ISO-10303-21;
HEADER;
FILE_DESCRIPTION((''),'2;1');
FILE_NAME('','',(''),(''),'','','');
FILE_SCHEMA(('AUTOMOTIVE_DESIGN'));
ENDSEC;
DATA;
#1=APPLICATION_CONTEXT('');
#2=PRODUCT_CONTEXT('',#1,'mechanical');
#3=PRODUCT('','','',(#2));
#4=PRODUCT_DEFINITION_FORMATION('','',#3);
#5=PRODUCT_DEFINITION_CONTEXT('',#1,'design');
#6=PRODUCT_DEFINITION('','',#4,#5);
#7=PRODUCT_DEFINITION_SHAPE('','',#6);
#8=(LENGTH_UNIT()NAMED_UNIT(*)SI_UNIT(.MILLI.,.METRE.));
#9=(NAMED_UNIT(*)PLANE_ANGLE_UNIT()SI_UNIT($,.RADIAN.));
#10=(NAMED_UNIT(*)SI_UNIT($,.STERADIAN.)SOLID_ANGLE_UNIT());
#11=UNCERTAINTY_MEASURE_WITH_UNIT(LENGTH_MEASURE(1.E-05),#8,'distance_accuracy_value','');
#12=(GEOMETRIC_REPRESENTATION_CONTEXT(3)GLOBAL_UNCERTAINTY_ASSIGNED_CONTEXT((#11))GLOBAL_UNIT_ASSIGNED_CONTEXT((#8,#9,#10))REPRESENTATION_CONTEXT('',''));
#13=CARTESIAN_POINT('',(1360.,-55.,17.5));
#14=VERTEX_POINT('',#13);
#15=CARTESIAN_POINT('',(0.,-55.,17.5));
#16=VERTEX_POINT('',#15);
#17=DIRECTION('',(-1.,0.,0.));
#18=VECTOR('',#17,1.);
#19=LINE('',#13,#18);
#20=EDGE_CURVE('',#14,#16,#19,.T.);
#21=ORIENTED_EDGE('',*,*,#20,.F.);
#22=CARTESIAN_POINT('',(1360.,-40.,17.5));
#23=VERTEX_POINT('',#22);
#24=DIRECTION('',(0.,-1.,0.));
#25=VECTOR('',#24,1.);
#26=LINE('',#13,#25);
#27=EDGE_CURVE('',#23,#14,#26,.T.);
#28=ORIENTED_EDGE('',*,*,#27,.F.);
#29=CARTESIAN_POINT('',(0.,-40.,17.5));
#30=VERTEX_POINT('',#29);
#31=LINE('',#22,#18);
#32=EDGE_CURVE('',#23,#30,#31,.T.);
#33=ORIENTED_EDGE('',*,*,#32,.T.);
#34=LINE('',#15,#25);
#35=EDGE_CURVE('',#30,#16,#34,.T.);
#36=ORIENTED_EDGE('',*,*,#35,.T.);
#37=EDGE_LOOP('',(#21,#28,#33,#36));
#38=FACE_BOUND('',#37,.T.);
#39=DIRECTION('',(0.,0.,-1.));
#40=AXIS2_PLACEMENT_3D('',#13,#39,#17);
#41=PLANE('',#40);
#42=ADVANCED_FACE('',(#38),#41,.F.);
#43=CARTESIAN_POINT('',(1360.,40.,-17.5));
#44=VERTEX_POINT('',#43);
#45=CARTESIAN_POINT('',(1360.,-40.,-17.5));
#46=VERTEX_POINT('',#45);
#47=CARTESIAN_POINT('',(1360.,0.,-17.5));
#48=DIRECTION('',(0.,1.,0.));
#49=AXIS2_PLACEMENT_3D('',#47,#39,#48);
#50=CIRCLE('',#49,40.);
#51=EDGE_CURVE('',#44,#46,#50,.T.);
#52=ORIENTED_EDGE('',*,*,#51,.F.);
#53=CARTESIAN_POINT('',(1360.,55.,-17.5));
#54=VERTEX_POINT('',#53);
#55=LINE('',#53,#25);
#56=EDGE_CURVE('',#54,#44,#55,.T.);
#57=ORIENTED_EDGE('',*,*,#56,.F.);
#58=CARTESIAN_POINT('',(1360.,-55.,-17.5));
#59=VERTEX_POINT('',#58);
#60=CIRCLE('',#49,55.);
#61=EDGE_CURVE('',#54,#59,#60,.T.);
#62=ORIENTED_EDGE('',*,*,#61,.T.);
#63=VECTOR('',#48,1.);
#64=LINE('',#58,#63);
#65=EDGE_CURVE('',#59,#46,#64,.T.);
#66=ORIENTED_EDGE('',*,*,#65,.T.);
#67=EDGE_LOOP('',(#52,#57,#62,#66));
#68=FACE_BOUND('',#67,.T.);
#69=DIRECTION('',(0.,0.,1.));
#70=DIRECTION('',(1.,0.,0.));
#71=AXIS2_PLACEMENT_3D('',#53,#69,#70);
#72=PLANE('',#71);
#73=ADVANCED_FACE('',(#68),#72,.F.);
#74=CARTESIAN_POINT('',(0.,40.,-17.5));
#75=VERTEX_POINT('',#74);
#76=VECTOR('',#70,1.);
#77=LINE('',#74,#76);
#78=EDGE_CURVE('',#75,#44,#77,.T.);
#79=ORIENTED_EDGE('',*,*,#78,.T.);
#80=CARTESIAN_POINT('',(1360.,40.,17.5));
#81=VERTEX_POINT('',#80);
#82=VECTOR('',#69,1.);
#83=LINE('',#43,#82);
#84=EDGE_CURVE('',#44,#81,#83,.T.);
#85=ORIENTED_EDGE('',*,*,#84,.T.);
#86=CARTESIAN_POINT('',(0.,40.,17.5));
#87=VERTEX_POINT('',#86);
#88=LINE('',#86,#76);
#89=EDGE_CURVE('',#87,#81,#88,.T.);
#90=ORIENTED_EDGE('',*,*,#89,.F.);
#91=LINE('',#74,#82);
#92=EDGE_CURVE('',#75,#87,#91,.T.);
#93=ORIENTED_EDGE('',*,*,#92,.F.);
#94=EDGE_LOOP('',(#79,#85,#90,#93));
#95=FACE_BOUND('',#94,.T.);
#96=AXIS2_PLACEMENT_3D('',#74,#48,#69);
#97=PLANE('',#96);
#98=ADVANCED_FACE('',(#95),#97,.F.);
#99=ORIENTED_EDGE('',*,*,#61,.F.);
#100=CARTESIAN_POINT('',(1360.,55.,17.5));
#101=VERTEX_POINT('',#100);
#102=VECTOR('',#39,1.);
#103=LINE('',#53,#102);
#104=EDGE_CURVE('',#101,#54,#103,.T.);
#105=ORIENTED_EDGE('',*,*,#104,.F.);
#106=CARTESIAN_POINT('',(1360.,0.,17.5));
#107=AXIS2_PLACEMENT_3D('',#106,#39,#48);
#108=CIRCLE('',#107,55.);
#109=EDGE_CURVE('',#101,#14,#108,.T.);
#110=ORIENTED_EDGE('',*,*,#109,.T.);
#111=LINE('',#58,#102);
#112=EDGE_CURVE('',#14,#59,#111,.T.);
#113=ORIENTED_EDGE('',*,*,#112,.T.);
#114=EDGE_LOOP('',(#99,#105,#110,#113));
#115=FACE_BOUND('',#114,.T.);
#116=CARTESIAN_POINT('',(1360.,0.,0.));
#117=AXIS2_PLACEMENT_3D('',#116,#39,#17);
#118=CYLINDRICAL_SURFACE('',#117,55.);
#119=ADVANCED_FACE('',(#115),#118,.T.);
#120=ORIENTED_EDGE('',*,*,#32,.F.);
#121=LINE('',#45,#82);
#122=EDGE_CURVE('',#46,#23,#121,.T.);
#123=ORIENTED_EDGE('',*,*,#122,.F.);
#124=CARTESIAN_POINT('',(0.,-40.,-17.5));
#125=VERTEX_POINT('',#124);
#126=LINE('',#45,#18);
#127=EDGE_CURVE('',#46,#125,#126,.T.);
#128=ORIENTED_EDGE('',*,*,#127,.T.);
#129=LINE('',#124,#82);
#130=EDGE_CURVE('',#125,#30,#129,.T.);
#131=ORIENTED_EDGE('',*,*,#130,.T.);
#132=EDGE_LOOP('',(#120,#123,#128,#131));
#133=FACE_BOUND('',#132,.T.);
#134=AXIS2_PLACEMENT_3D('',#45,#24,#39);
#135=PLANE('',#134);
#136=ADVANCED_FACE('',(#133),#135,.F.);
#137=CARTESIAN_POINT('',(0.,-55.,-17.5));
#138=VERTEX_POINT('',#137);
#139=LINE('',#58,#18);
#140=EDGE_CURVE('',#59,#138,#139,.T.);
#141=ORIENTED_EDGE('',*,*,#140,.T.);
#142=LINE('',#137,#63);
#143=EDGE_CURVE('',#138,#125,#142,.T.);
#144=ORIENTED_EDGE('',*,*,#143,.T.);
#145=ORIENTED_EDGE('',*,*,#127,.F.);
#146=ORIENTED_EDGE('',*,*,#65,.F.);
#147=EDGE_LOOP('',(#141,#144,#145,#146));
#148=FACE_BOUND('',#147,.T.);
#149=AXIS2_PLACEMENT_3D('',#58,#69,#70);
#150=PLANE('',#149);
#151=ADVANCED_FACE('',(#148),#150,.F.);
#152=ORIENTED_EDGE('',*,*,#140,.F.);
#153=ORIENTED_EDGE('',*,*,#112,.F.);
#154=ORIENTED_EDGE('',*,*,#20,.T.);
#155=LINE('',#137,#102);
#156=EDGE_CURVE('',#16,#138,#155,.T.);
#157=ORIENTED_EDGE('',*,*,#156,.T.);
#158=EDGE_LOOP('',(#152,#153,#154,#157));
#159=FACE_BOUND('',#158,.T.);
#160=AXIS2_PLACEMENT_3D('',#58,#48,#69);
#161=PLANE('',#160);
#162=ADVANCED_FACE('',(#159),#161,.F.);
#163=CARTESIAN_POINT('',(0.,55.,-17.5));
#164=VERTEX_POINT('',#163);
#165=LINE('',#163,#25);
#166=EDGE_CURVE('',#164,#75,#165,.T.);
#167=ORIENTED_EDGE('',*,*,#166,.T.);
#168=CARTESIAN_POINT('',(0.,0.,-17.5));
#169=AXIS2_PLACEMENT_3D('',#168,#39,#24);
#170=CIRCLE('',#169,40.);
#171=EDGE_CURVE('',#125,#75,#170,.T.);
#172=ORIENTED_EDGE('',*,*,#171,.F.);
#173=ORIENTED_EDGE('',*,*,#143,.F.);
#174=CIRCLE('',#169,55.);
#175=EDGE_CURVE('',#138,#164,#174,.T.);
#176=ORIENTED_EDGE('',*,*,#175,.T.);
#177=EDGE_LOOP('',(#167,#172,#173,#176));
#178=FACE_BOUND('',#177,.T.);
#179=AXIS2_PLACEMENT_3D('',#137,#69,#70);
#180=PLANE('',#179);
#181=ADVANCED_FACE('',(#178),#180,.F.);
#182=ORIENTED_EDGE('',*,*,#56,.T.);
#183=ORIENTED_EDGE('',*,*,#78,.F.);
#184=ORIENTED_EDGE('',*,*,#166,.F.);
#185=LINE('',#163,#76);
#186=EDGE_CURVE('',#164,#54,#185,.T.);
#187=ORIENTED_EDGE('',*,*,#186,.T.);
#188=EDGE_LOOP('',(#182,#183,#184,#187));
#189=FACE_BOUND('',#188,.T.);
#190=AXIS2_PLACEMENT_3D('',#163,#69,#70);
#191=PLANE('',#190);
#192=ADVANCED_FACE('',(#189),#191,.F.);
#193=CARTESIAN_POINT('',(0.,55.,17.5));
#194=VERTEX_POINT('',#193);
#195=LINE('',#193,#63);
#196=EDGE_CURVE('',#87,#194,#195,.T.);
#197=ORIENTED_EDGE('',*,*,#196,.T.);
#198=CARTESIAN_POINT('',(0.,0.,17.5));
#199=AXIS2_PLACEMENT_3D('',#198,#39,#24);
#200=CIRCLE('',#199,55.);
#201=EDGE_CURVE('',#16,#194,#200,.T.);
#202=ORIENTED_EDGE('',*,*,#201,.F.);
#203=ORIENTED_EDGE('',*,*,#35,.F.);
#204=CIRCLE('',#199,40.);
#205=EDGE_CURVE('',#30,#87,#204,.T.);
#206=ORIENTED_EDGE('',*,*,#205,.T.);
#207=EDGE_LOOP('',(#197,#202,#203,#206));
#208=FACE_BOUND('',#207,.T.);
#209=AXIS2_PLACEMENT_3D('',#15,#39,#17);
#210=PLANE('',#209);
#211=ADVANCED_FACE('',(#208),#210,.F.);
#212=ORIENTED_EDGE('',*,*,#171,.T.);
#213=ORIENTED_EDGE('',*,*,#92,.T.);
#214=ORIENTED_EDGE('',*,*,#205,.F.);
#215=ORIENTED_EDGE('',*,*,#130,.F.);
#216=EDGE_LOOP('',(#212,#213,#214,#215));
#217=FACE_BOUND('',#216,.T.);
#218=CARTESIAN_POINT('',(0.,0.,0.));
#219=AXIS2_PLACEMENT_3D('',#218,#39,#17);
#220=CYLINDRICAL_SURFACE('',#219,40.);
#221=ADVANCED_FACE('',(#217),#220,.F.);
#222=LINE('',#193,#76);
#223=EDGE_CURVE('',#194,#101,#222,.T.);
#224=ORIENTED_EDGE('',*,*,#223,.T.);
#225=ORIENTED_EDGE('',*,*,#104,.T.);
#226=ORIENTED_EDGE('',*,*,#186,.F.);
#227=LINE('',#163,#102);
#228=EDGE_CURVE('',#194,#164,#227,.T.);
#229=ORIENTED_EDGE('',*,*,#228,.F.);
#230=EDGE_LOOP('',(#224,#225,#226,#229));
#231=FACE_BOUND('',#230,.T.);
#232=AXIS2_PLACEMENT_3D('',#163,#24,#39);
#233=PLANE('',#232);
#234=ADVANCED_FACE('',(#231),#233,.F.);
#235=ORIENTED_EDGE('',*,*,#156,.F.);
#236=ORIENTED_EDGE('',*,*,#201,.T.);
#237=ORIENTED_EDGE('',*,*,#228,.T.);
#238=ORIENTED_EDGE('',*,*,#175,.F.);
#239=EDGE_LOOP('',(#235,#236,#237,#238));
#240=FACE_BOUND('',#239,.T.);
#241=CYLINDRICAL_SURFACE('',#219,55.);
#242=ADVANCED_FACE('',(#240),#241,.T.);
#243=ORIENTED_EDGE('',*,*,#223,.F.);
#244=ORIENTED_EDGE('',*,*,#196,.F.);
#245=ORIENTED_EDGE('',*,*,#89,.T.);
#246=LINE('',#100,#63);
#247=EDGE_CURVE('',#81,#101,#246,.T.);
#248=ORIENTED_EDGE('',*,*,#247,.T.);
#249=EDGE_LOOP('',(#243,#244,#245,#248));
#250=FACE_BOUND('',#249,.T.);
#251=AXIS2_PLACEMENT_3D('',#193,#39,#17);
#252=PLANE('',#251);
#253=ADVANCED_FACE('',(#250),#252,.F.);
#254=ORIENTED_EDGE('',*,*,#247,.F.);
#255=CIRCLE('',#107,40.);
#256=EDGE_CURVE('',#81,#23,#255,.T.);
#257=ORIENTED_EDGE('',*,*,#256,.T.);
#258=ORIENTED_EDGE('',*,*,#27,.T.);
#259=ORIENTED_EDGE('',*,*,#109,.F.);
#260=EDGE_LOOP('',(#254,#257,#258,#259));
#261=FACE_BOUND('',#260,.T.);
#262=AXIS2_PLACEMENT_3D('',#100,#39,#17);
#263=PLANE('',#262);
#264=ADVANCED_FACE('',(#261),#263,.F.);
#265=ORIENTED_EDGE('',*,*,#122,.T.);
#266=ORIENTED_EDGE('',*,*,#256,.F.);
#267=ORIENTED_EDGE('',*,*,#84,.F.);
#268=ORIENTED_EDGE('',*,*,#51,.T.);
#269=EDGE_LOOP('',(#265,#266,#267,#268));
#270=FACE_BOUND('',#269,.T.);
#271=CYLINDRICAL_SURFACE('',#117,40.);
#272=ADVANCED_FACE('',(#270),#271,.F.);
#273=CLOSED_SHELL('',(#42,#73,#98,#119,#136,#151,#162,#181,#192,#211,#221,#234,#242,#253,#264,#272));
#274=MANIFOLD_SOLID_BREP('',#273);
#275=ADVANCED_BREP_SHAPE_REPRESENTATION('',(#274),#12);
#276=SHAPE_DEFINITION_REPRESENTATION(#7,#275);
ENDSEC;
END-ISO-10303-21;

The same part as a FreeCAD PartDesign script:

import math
import FreeCAD as App
import Part
import Sketcher

V = App.Vector


def add_polygon(sketch, points):
    """Adds a closed chain of lines whose ends are joined by coincident constraints."""
    first, n = sketch.GeometryCount, len(points)
    for a, b in zip(points, points[1:] + points[:1]):
        sketch.addGeometry(Part.LineSegment(App.Vector(*a, 0), App.Vector(*b, 0)), False)
    for i in range(n):
        sketch.addConstraint(Sketcher.Constraint("Coincident", first + i, 2, first + (i + 1) % n, 1))

doc = App.newDocument("Part")
params = doc.addObject("Spreadsheet::Sheet", "Params")
for row, (alias, value) in enumerate([
    ("sketch1_width", "15 mm"),
    ("sketch1_height", "35 mm"),
    ("sketch2_radius", "40 mm"),
    ("sketch2_width", "1360 mm"),
], start=1):
    params.set(f"A{row}", alias)
    params.set(f"B{row}", "=" + value)
    params.setAlias(f"B{row}", alias)

body = doc.addObject("PartDesign::Body", "Body")

# Sketch on YZ plane
sketch1 = body.newObject("Sketcher::SketchObject", "Sketch")
sketch1.AttachmentSupport = (doc.getObject("YZ_Plane"), [""])
sketch1.MapMode = "FlatFace"
sketch1.AttachmentOffset = App.Placement(V(0, 0, 1360), App.Rotation())
add_polygon(sketch1, [(55, 18), (55, -18), (40, -18), (40, 17)])  # lines 0-3
sketch1.addConstraint(Sketcher.Constraint("Vertical", 0))
sketch1.addConstraint(Sketcher.Constraint("Horizontal", 1))
sketch1.addConstraint(Sketcher.Constraint("Vertical", 2))
sketch1.addConstraint(Sketcher.Constraint("Horizontal", 3))
sketch1.addConstraint(Sketcher.Constraint("DistanceX", 1, 2, 1, 1, 15.0))
sketch1.addConstraint(Sketcher.Constraint("DistanceY", 0, 2, 0, 1, 35.0))
sketch1.addConstraint(Sketcher.Constraint("DistanceX", -1, 1, 0, 2, 55.0))
sketch1.addConstraint(Sketcher.Constraint("DistanceY", 0, 2, -1, 1, 17.5))
sketch1.setExpression("Constraints[8]", "Params.sketch1_width")
sketch1.setExpression("Constraints[9]", "Params.sketch1_height")

# Sketch on XY plane
sketch2 = body.newObject("Sketcher::SketchObject", "Sketch001")
sketch2.AttachmentSupport = (doc.getObject("XY_Plane"), [""])
sketch2.MapMode = "FlatFace"
sketch2.addGeometry(Part.LineSegment(V(0, 40, 0), V(1360, 40, 0)), False)
sketch2.addGeometry(Part.ArcOfCircle(Part.Circle(V(1360, 0, 0), V(0, 0, 1), 40), math.radians(-90), math.radians(90)), False)
sketch2.addGeometry(Part.LineSegment(V(1360, -40, 0), V(0, -40, 0)), False)
sketch2.addGeometry(Part.ArcOfCircle(Part.Circle(V(0, 0, 0), V(0, 0, 1), 40), math.radians(90), math.radians(270)), False)
sketch2.addConstraint(Sketcher.Constraint("Tangent", 0, 2, 1, 2))
sketch2.addConstraint(Sketcher.Constraint("Tangent", 1, 1, 2, 1))
sketch2.addConstraint(Sketcher.Constraint("Tangent", 2, 2, 3, 2))
sketch2.addConstraint(Sketcher.Constraint("Tangent", 3, 1, 0, 1))
sketch2.addConstraint(Sketcher.Constraint("Horizontal", 0))
sketch2.addConstraint(Sketcher.Constraint("Horizontal", 2))
sketch2.addConstraint(Sketcher.Constraint("Coincident", 3, 3, -1, 1))
sketch2.addConstraint(Sketcher.Constraint("Radius", 1, 40.0))
sketch2.addConstraint(Sketcher.Constraint("DistanceX", 0, 1, 0, 2, 1360.0))
sketch2.setExpression("Constraints[7]", "Params.sketch2_radius")
sketch2.setExpression("Constraints[8]", "Params.sketch2_width")
doc.recompute()

additivepipe = body.newObject("PartDesign::AdditivePipe", "AdditivePipe")
additivepipe.Profile = sketch1
additivepipe.Spine = (sketch2, ["Edge1", "Edge2", "Edge3", "Edge4"])

doc.recompute()
